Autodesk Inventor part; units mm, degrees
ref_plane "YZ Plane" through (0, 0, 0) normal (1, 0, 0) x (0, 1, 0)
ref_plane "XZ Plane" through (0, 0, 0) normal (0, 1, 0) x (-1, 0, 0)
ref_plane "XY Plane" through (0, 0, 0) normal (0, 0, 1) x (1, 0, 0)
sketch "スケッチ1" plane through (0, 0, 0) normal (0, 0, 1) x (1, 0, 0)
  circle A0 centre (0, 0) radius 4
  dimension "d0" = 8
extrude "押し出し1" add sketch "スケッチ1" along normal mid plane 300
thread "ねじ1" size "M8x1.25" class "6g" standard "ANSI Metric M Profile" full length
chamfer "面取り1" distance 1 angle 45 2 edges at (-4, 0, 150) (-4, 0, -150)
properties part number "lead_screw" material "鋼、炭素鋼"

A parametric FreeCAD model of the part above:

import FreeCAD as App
import Part
import Sketcher

V = App.Vector


def edges_at(feature, points):
    """Names of the edges that pass closest to the given points."""
    edges = feature.Shape.Edges
    near = lambda p: min(range(len(edges)), key=lambda i: edges[i].distToShape(Part.Vertex(*p))[0])
    return sorted({f"Edge{near(p) + 1}" for p in points})

doc = App.newDocument("Part")
body = doc.addObject("PartDesign::Body", "Body")

sketch1 = body.newObject("Sketcher::SketchObject", "Sketch")
sketch1.AttachmentSupport = (doc.getObject("XY_Plane"), [""])
sketch1.MapMode = "FlatFace"
sketch1.addGeometry(Part.Circle(V(0, 0, 0), V(0, 0, 1), 4), False)
sketch1.addConstraint([
    Sketcher.Constraint("Coincident", 0, 3, -1, 1),
    Sketcher.Constraint("Diameter", 0, 8.0),
])
pad1 = body.newObject("PartDesign::Pad", "Pad")
pad1.Profile = sketch1
pad1.Length = 300
pad1.Midplane = True
doc.recompute()

chamfer = body.newObject("PartDesign::Chamfer", "Chamfer")
chamfer.Base = (pad1, edges_at(pad1, [(-4, 0, 150), (-4, 0, -150)]))
chamfer.Size = 1

doc.recompute()
